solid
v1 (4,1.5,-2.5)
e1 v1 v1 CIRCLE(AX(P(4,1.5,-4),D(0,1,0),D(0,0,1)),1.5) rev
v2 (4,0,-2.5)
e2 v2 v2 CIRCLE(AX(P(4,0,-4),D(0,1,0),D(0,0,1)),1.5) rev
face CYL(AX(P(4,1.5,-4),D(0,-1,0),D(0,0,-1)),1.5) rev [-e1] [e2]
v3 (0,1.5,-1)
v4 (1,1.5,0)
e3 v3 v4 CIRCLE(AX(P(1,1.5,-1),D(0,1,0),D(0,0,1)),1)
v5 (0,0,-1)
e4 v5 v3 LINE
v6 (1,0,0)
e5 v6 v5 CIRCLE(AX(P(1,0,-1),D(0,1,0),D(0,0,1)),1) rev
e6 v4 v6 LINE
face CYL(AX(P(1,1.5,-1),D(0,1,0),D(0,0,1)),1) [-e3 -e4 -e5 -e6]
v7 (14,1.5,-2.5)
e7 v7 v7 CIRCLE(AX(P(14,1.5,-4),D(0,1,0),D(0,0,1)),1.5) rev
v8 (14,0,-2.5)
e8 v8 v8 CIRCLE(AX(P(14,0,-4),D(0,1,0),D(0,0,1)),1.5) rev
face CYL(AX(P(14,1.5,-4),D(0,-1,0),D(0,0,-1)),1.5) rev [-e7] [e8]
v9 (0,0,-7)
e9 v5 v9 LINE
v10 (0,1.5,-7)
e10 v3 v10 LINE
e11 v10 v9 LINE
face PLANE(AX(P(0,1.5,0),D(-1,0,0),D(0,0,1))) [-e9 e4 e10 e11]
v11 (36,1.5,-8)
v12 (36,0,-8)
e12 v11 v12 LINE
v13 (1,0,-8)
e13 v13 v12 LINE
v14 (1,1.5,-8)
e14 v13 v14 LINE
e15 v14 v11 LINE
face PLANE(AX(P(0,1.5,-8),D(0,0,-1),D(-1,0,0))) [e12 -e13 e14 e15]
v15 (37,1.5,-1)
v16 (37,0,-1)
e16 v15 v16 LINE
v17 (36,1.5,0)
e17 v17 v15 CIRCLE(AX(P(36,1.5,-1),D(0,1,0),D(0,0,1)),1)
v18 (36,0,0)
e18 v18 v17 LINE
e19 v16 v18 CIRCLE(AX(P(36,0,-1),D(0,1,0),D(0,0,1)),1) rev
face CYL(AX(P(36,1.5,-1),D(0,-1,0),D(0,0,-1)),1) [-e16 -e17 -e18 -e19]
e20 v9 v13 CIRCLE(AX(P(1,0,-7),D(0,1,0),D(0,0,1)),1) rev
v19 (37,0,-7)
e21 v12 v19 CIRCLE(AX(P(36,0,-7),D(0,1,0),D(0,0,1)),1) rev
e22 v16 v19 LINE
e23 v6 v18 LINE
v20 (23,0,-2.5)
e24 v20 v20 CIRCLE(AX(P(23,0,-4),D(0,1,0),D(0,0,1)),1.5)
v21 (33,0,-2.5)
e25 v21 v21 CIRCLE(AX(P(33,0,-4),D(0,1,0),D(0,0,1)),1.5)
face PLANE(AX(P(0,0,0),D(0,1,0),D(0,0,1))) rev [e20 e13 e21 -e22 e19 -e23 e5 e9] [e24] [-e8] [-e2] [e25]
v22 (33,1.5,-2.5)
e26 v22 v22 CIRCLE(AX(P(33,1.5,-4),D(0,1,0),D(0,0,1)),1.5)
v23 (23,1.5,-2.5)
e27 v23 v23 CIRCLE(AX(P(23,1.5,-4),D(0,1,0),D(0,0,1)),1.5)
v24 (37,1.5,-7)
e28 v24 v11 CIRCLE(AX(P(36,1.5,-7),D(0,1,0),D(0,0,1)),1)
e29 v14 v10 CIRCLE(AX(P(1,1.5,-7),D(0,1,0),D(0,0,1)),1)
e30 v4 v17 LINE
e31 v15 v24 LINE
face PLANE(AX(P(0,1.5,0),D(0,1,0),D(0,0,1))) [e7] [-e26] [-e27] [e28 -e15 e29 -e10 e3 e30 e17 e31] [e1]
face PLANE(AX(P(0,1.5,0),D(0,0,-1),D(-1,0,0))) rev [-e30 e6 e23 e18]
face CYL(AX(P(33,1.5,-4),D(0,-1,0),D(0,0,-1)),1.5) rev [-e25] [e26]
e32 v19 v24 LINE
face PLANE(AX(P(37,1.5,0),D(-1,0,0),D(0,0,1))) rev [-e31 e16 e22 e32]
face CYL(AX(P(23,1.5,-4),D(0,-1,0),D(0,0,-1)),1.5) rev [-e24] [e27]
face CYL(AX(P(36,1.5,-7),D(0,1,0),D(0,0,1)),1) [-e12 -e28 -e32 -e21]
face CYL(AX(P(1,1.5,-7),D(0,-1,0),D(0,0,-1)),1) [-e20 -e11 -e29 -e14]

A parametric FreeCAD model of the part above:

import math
import FreeCAD as App
import Part
import Sketcher
from FreeCAD import Vector


def edges_at(feature, points):
    """Names of the edges that pass closest to the given points."""
    edges = feature.Shape.Edges
    near = lambda p: min(range(len(edges)), key=lambda i: edges[i].distToShape(Part.Vertex(*p))[0])
    return sorted({f"Edge{near(p) + 1}" for p in points})

doc = App.newDocument("Part")
params = doc.addObject("Spreadsheet::Sheet", "Params")
for row, (alias, value) in enumerate([
    ("sketch1_diameter", "3 mm"),
    ("sketch1_width", "37 mm"),
    ("sketch1_height", "8 mm"),
    ("pad1_length", "1.5 mm"),
    ("fillet_radius", "1 mm"),
], start=1):
    params.set(f"A{row}", alias)
    params.set(f"B{row}", "=" + value)
    params.setAlias(f"B{row}", alias)

body = doc.addObject("PartDesign::Body", "Body")

sketch1 = body.newObject("Sketcher::SketchObject", "Sketch")
sketch1.AttachmentSupport = (doc.getObject("XZ_Plane"), [""])
sketch1.MapMode = "FlatFace"
sketch1.addGeometry([
    Part.LineSegment(Vector(0, 0, 0), Vector(37, 0, 0)),
    Part.LineSegment(Vector(37, 0, 0), Vector(37, -8, 0)),
    Part.LineSegment(Vector(37, -8, 0), Vector(0, -8, 0)),
    Part.LineSegment(Vector(0, -8, 0), Vector(0, 0, 0)),
    Part.Circle(Vector(14, -4, 0), Vector(0, 0, 1), 1.5),
    Part.Circle(Vector(4, -4, 0), Vector(0, 0, 1), 1.5),
    Part.ArcOfCircle(Part.Circle(Vector(33, -4, 0), Vector(0, 0, 1), 1.5), math.radians(0), math.radians(180)),
    Part.ArcOfCircle(Part.Circle(Vector(33, -4, 0), Vector(0, 0, 1), 1.5), math.radians(180), math.radians(270)),
    Part.ArcOfCircle(Part.Circle(Vector(33, -4, 0), Vector(0, 0, 1), 1.5), math.radians(-90), math.radians(0)),
    Part.Circle(Vector(23, -4, 0), Vector(0, 0, 1), 1.5),
], False)
sketch1.addConstraint([
    Sketcher.Constraint("Coincident", 0, 2, 1, 1),
    Sketcher.Constraint("Coincident", 1, 2, 2, 1),
    Sketcher.Constraint("Coincident", 2, 2, 3, 1),
    Sketcher.Constraint("Coincident", 3, 2, 0, 1),
    Sketcher.Constraint("Tangent", 6, 2, 7, 1),
    Sketcher.Constraint("Tangent", 7, 2, 8, 1),
    Sketcher.Constraint("Tangent", 8, 2, 6, 1),
    Sketcher.Constraint("Horizontal", 0),
    Sketcher.Constraint("Vertical", 1),
    Sketcher.Constraint("Horizontal", 2),
    Sketcher.Constraint("Vertical", 3),
    Sketcher.Constraint("Coincident", 3, 2, -1, 1),
    Sketcher.Constraint("Equal", 4, 5),
    Sketcher.Constraint("Equal", 5, 6),
    Sketcher.Constraint("Equal", 8, 9),
    Sketcher.Constraint("Horizontal", 4, 3, 5, 3),
    Sketcher.Constraint("Horizontal", 5, 3, 6, 3),
    Sketcher.Constraint("Horizontal", 8, 3, 9, 3),
    Sketcher.Constraint("Horizontal", 9, 3, 6, 2),
    Sketcher.Constraint("Horizontal", 6, 2, 8, 2),
    Sketcher.Constraint("Vertical", 8, 3, 7, 2),
    Sketcher.Constraint("Diameter", 4, 3.0),
    Sketcher.Constraint("DistanceX", 0, 1, 0, 2, 37.0),
    Sketcher.Constraint("DistanceY", 1, 2, 1, 1, 8.0),
    Sketcher.Constraint("DistanceX", -1, 1, 4, 3, 14.0),
    Sketcher.Constraint("DistanceY", 4, 3, -1, 1, 4.0),
    Sketcher.Constraint("DistanceX", -1, 1, 5, 3, 4.0),
    Sketcher.Constraint("DistanceX", -1, 1, 6, 3, 33.0),
    Sketcher.Constraint("DistanceX", -1, 1, 9, 3, 23.0),
])
sketch1.setExpression("Constraints[21]", "Params.sketch1_diameter")
sketch1.setExpression("Constraints[22]", "Params.sketch1_width")
sketch1.setExpression("Constraints[23]", "Params.sketch1_height")
pad1 = body.newObject("PartDesign::Pad", "Pad")
pad1.Profile = sketch1
pad1.setExpression("Length", "Params.pad1_length")
pad1.Reversed = True
doc.recompute()

fillet = body.newObject("PartDesign::Fillet", "Fillet")
fillet.Base = (pad1, edges_at(pad1, [
    (0, 0.75, 0),
    (0, 0.75, -8),
    (37, 0.75, -8),
    (37, 0.75, 0),
]))
fillet.setExpression("Radius", "Params.fillet_radius")

doc.recompute()
